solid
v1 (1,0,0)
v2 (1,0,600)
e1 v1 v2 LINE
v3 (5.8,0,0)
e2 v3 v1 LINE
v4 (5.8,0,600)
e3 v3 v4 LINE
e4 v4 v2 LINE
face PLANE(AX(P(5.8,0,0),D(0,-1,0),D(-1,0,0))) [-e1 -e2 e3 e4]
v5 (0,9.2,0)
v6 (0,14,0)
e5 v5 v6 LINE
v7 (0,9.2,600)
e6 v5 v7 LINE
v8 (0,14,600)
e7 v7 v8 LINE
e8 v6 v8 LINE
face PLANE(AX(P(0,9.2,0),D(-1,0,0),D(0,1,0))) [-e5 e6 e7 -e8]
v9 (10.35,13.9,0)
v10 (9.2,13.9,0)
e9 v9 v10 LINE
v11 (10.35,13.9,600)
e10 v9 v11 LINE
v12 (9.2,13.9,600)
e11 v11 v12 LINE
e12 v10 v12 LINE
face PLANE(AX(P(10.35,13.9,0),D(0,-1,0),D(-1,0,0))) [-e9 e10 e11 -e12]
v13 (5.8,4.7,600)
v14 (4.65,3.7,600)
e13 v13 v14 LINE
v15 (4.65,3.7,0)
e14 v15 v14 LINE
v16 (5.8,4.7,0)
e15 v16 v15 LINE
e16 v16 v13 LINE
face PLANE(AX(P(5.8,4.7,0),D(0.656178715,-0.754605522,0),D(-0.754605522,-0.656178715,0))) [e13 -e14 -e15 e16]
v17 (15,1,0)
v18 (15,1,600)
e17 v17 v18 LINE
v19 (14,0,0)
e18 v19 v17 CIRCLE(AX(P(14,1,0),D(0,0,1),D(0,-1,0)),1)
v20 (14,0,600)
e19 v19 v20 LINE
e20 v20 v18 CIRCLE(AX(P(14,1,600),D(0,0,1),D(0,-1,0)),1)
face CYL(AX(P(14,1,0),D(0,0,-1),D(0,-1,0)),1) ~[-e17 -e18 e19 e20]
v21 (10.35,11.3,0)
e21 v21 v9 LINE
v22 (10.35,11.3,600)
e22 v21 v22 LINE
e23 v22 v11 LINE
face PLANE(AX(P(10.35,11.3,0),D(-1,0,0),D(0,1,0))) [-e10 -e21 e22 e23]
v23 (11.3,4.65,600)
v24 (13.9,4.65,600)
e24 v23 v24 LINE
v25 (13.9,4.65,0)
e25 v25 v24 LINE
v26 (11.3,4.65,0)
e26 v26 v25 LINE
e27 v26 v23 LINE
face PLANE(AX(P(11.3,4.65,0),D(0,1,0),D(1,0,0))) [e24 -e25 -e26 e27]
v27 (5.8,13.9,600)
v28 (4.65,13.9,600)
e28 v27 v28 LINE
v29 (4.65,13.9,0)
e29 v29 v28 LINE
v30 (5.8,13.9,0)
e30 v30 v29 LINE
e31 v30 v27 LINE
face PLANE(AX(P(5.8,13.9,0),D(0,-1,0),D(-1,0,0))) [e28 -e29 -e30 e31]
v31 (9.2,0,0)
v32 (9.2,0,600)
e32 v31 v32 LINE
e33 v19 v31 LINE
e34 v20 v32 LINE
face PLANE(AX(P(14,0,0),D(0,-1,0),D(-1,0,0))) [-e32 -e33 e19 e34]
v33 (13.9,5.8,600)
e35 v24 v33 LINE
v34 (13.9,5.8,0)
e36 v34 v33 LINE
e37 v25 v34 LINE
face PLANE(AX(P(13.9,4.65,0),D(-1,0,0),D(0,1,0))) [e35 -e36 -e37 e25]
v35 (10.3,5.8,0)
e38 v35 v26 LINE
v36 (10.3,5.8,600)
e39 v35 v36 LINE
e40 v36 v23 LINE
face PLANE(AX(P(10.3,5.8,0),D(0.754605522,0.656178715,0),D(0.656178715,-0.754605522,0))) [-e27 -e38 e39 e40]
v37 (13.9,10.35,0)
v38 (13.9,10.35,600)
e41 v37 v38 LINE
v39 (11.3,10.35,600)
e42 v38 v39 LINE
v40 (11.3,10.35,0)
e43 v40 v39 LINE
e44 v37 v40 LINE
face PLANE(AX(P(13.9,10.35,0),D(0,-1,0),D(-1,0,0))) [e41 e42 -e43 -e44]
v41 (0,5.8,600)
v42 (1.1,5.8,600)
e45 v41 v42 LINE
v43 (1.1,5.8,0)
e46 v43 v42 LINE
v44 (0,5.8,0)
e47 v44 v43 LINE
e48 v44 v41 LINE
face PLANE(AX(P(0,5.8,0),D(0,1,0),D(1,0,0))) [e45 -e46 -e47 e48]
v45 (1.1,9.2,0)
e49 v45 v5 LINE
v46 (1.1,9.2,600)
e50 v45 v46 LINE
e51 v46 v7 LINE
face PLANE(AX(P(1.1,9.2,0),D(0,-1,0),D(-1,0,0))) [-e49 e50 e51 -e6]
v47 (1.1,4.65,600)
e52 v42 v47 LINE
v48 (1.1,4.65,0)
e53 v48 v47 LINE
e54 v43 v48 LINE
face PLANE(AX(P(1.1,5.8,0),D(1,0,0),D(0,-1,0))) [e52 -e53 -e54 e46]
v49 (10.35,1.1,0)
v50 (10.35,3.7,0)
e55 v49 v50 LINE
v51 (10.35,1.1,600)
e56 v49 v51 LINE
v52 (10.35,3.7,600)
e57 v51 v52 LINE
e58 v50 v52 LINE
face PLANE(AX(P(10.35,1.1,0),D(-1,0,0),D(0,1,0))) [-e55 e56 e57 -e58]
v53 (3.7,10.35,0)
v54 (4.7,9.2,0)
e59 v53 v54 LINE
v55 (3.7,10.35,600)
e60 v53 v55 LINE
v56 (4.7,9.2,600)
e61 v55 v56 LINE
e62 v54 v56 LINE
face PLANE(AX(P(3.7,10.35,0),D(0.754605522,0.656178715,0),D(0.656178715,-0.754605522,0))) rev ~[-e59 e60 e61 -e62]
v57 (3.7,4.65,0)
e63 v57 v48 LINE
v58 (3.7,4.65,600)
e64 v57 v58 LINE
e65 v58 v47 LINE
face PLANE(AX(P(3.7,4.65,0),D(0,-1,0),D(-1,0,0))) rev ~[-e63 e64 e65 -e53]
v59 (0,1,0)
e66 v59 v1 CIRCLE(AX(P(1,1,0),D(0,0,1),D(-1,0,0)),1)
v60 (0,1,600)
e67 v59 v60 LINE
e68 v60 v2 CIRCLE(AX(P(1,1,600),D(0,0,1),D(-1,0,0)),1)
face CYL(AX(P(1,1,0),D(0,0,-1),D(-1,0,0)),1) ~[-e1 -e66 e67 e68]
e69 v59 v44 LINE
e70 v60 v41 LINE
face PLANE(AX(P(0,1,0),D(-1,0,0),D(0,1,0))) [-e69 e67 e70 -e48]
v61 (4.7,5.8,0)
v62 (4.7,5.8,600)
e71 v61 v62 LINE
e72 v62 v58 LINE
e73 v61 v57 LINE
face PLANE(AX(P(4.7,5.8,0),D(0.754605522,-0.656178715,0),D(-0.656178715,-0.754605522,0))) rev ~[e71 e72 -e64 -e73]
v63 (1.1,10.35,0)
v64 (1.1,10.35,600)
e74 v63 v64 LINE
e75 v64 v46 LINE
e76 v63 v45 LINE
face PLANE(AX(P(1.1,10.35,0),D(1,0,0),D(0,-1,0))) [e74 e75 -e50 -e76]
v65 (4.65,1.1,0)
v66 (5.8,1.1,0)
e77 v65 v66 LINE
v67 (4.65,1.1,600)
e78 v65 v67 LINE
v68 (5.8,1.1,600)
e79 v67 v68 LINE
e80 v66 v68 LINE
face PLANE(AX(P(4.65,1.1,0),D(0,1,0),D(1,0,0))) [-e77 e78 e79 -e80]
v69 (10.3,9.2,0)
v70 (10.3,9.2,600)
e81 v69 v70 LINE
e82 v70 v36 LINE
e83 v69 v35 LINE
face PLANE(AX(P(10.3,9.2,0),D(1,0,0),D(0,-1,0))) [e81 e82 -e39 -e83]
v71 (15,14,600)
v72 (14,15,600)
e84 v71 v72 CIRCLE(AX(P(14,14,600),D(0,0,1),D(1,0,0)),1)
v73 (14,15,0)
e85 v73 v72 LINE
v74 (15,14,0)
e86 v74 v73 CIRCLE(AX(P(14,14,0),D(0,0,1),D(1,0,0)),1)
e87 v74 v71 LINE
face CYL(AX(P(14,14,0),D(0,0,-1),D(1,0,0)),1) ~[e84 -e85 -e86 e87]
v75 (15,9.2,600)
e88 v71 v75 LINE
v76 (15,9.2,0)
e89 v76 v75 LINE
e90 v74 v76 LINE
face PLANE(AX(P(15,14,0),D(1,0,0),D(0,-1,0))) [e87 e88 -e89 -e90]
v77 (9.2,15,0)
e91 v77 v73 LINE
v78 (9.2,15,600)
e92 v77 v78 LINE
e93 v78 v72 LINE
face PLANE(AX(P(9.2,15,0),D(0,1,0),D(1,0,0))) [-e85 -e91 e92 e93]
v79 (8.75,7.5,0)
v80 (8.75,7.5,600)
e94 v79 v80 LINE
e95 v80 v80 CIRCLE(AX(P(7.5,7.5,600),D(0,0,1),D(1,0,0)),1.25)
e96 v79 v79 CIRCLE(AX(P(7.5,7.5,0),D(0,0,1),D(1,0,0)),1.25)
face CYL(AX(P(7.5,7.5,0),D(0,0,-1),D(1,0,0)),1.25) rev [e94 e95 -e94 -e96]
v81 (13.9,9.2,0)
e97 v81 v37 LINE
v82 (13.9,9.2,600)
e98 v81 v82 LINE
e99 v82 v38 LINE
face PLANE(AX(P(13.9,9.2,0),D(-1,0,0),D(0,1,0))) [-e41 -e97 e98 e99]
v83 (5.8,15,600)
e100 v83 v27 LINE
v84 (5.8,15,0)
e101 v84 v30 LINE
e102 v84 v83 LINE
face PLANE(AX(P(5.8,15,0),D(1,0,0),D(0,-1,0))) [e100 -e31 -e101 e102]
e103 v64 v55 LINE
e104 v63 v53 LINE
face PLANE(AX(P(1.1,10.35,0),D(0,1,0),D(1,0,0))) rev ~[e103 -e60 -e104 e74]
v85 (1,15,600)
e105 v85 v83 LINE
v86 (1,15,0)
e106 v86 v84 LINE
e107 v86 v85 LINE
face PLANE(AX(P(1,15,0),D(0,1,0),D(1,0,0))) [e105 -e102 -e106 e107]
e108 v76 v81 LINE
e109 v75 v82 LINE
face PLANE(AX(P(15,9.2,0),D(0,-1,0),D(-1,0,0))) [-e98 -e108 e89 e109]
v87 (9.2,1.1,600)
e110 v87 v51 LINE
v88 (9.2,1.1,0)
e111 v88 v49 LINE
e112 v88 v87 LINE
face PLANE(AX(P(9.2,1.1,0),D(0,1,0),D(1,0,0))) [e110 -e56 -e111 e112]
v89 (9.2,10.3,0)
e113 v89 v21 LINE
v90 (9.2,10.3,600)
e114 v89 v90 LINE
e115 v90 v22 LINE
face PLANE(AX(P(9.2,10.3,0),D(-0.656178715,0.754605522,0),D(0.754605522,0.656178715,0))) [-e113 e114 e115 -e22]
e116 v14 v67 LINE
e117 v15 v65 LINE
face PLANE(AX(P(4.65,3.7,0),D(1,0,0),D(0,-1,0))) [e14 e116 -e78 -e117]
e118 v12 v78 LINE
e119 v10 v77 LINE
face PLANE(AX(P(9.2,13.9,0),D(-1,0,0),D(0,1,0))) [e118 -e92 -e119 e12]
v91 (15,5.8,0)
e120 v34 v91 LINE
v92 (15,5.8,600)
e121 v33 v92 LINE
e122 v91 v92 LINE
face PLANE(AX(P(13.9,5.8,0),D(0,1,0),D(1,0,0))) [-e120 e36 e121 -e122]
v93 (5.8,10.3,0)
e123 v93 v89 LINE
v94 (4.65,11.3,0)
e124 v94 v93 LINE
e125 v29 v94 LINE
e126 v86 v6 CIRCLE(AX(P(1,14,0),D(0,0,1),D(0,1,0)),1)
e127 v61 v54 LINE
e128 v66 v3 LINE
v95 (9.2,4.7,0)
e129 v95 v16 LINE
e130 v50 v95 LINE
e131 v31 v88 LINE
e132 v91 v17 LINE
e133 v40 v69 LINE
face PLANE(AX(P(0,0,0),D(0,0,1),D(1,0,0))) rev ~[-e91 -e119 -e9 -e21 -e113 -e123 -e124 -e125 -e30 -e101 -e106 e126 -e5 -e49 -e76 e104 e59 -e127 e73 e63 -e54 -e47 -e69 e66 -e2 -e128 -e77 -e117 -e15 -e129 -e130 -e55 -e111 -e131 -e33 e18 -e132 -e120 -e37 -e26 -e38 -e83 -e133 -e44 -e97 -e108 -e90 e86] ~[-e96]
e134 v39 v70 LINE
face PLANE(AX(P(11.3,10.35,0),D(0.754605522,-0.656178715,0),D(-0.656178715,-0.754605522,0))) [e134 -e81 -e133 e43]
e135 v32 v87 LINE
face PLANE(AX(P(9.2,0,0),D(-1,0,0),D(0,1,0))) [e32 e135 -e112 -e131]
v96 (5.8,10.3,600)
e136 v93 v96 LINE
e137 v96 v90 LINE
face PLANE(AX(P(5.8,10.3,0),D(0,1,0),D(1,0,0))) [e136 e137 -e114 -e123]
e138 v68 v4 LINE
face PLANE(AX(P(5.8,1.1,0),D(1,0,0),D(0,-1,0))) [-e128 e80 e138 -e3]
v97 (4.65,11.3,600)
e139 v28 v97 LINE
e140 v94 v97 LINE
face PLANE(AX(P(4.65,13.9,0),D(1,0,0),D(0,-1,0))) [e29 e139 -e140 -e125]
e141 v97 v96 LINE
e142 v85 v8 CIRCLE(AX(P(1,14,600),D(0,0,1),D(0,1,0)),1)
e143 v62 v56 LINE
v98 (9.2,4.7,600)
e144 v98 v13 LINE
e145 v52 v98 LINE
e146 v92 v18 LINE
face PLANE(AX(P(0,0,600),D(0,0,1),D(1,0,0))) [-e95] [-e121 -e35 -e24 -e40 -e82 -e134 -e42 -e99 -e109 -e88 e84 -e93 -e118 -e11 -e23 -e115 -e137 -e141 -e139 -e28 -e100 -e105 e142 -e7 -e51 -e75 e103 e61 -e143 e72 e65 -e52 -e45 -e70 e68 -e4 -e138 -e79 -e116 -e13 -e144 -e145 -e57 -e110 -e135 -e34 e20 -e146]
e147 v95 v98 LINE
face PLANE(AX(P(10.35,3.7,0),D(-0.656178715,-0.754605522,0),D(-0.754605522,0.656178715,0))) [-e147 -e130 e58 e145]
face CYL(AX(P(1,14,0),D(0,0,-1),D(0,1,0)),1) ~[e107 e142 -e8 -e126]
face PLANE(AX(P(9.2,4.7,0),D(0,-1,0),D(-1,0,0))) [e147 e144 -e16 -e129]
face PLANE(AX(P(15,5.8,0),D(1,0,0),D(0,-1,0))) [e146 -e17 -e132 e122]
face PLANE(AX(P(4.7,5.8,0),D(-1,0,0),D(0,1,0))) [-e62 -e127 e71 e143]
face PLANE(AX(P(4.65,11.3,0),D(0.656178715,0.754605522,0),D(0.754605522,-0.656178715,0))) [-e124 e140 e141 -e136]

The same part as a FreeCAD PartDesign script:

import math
import FreeCAD as App
import Part
import Sketcher
Q = App.Units.Quantity

doc = App.newDocument("Part")
params = doc.addObject("Spreadsheet::Sheet", "Params")
for row, (alias, value) in enumerate([
    ("sketch1_radius", "1 mm"),
    ("sketch1_diameter", "2.5 mm"),
    ("sketch1_width", "3.4 mm"),
    ("sketch1_width2", "1.1 mm"),
    ("sketch1_width3", "1.15 mm"),
    ("pad1_length", "600 mm"),
], start=1):
    params.set(f"A{row}", alias)
    params.set(f"B{row}", "=" + value)
    params.setAlias(f"B{row}", alias)

body = doc.addObject("PartDesign::Body", "Body")

sketch1 = doc.addObject("Sketcher::SketchObject", "Sketch")
body.addObject(sketch1)
sketch1.AttachmentSupport = (doc.XY_Plane, [""])
sketch1.MapMode = "FlatFace"
sketch1.addGeometry([
    Part.LineSegment(App.Vector(0, 5.8, 0), App.Vector(0, 1, 0)),
    Part.ArcOfCircle(Part.Circle(App.Vector(1, 1, 0), App.Vector(0, 0, 1), 1), math.radians(180), math.radians(270)),
    Part.LineSegment(App.Vector(1, 0, 0), App.Vector(5.8, 0, 0)),
    Part.LineSegment(App.Vector(5.8, 0, 0), App.Vector(5.8, 1.1, 0)),
    Part.LineSegment(App.Vector(5.8, 1.1, 0), App.Vector(4.65, 1.1, 0)),
    Part.LineSegment(App.Vector(4.65, 1.1, 0), App.Vector(4.65, 3.7, 0)),
    Part.LineSegment(App.Vector(4.65, 3.7, 0), App.Vector(5.8, 4.7, 0)),
    Part.LineSegment(App.Vector(5.8, 4.7, 0), App.Vector(9.2, 4.7, 0)),
    Part.LineSegment(App.Vector(9.2, 4.7, 0), App.Vector(10.35, 3.7, 0)),
    Part.LineSegment(App.Vector(10.35, 3.7, 0), App.Vector(10.35, 1.1, 0)),
    Part.LineSegment(App.Vector(10.35, 1.1, 0), App.Vector(9.2, 1.1, 0)),
    Part.LineSegment(App.Vector(9.2, 1.1, 0), App.Vector(9.2, 0, 0)),
    Part.LineSegment(App.Vector(9.2, 0, 0), App.Vector(14, 0, 0)),
    Part.ArcOfCircle(Part.Circle(App.Vector(14, 1, 0), App.Vector(0, 0, 1), 1), math.radians(-90), math.radians(0)),
    Part.LineSegment(App.Vector(15, 1, 0), App.Vector(15, 5.8, 0)),
    Part.LineSegment(App.Vector(15, 5.8, 0), App.Vector(13.9, 5.8, 0)),
    Part.LineSegment(App.Vector(13.9, 5.8, 0), App.Vector(13.9, 4.65, 0)),
    Part.LineSegment(App.Vector(13.9, 4.65, 0), App.Vector(11.3, 4.65, 0)),
    Part.LineSegment(App.Vector(11.3, 4.65, 0), App.Vector(10.3, 5.8, 0)),
    Part.LineSegment(App.Vector(10.3, 5.8, 0), App.Vector(10.3, 9.2, 0)),
    Part.LineSegment(App.Vector(10.3, 9.2, 0), App.Vector(11.3, 10.35, 0)),
    Part.LineSegment(App.Vector(11.3, 10.35, 0), App.Vector(13.9, 10.35, 0)),
    Part.LineSegment(App.Vector(13.9, 10.35, 0), App.Vector(13.9, 9.2, 0)),
    Part.LineSegment(App.Vector(13.9, 9.2, 0), App.Vector(15, 9.2, 0)),
    Part.LineSegment(App.Vector(15, 9.2, 0), App.Vector(15, 14, 0)),
    Part.ArcOfCircle(Part.Circle(App.Vector(14, 14, 0), App.Vector(0, 0, 1), 1), math.radians(0), math.radians(90)),
    Part.LineSegment(App.Vector(14, 15, 0), App.Vector(9.2, 15, 0)),
    Part.LineSegment(App.Vector(9.2, 15, 0), App.Vector(9.2, 13.9, 0)),
    Part.LineSegment(App.Vector(9.2, 13.9, 0), App.Vector(10.35, 13.9, 0)),
    Part.LineSegment(App.Vector(10.35, 13.9, 0), App.Vector(10.35, 11.3, 0)),
    Part.LineSegment(App.Vector(10.35, 11.3, 0), App.Vector(9.2, 10.3, 0)),
    Part.LineSegment(App.Vector(9.2, 10.3, 0), App.Vector(5.8, 10.3, 0)),
    Part.LineSegment(App.Vector(5.8, 10.3, 0), App.Vector(4.65, 11.3, 0)),
    Part.LineSegment(App.Vector(4.65, 11.3, 0), App.Vector(4.65, 13.9, 0)),
    Part.LineSegment(App.Vector(4.65, 13.9, 0), App.Vector(5.8, 13.9, 0)),
    Part.LineSegment(App.Vector(5.8, 13.9, 0), App.Vector(5.8, 15, 0)),
    Part.LineSegment(App.Vector(5.8, 15, 0), App.Vector(1, 15, 0)),
    Part.ArcOfCircle(Part.Circle(App.Vector(1, 14, 0), App.Vector(0, 0, 1), 1), math.radians(90), math.radians(180)),
    Part.LineSegment(App.Vector(0, 14, 0), App.Vector(0, 9.2, 0)),
    Part.LineSegment(App.Vector(0, 9.2, 0), App.Vector(1.1, 9.2, 0)),
    Part.LineSegment(App.Vector(1.1, 9.2, 0), App.Vector(1.1, 10.35, 0)),
    Part.LineSegment(App.Vector(1.1, 10.35, 0), App.Vector(3.7, 10.35, 0)),
    Part.LineSegment(App.Vector(3.7, 10.35, 0), App.Vector(4.7, 9.2, 0)),
    Part.LineSegment(App.Vector(4.7, 9.2, 0), App.Vector(4.7, 5.8, 0)),
    Part.LineSegment(App.Vector(4.7, 5.8, 0), App.Vector(3.7, 4.65, 0)),
    Part.LineSegment(App.Vector(3.7, 4.65, 0), App.Vector(1.1, 4.65, 0)),
    Part.LineSegment(App.Vector(1.1, 4.65, 0), App.Vector(1.1, 5.8, 0)),
    Part.LineSegment(App.Vector(1.1, 5.8, 0), App.Vector(0, 5.8, 0)),
    Part.Circle(App.Vector(7.5, 7.5, 0), App.Vector(0, 0, 1), 1.25),
], False)
sketch1.addConstraint([
    Sketcher.Constraint("Tangent", 0, 2, 1, 1),
    Sketcher.Constraint("Tangent", 1, 2, 2, 1),
    Sketcher.Constraint("Coincident", 2, 2, 3, 1),
    Sketcher.Constraint("Coincident", 3, 2, 4, 1),
    Sketcher.Constraint("Coincident", 4, 2, 5, 1),
    Sketcher.Constraint("Coincident", 5, 2, 6, 1),
    Sketcher.Constraint("Coincident", 6, 2, 7, 1),
    Sketcher.Constraint("Coincident", 7, 2, 8, 1),
    Sketcher.Constraint("Coincident", 8, 2, 9, 1),
    Sketcher.Constraint("Coincident", 9, 2, 10, 1),
    Sketcher.Constraint("Coincident", 10, 2, 11, 1),
    Sketcher.Constraint("Coincident", 11, 2, 12, 1),
    Sketcher.Constraint("Tangent", 12, 2, 13, 1),
    Sketcher.Constraint("Tangent", 13, 2, 14, 1),
    Sketcher.Constraint("Coincident", 14, 2, 15, 1),
    Sketcher.Constraint("Coincident", 15, 2, 16, 1),
    Sketcher.Constraint("Coincident", 16, 2, 17, 1),
    Sketcher.Constraint("Coincident", 17, 2, 18, 1),
    Sketcher.Constraint("Coincident", 18, 2, 19, 1),
    Sketcher.Constraint("Coincident", 19, 2, 20, 1),
    Sketcher.Constraint("Coincident", 20, 2, 21, 1),
    Sketcher.Constraint("Coincident", 21, 2, 22, 1),
    Sketcher.Constraint("Coincident", 22, 2, 23, 1),
    Sketcher.Constraint("Coincident", 23, 2, 24, 1),
    Sketcher.Constraint("Tangent", 24, 2, 25, 1),
    Sketcher.Constraint("Tangent", 25, 2, 26, 1),
    Sketcher.Constraint("Coincident", 26, 2, 27, 1),
    Sketcher.Constraint("Coincident", 27, 2, 28, 1),
    Sketcher.Constraint("Coincident", 28, 2, 29, 1),
    Sketcher.Constraint("Coincident", 29, 2, 30, 1),
    Sketcher.Constraint("Coincident", 30, 2, 31, 1),
    Sketcher.Constraint("Coincident", 31, 2, 32, 1),
    Sketcher.Constraint("Coincident", 32, 2, 33, 1),
    Sketcher.Constraint("Coincident", 33, 2, 34, 1),
    Sketcher.Constraint("Coincident", 34, 2, 35, 1),
    Sketcher.Constraint("Coincident", 35, 2, 36, 1),
    Sketcher.Constraint("Tangent", 36, 2, 37, 1),
    Sketcher.Constraint("Tangent", 37, 2, 38, 1),
    Sketcher.Constraint("Coincident", 38, 2, 39, 1),
    Sketcher.Constraint("Coincident", 39, 2, 40, 1),
    Sketcher.Constraint("Coincident", 40, 2, 41, 1),
    Sketcher.Constraint("Coincident", 41, 2, 42, 1),
    Sketcher.Constraint("Coincident", 42, 2, 43, 1),
    Sketcher.Constraint("Coincident", 43, 2, 44, 1),
    Sketcher.Constraint("Coincident", 44, 2, 45, 1),
    Sketcher.Constraint("Coincident", 45, 2, 46, 1),
    Sketcher.Constraint("Coincident", 46, 2, 47, 1),
    Sketcher.Constraint("Coincident", 47, 2, 0, 1),
    Sketcher.Constraint("Vertical", 0),
    Sketcher.Constraint("Horizontal", 2),
    Sketcher.Constraint("Vertical", 3),
    Sketcher.Constraint("Horizontal", 4),
    Sketcher.Constraint("Vertical", 5),
    Sketcher.Constraint("Horizontal", 7),
    Sketcher.Constraint("Vertical", 9),
    Sketcher.Constraint("Horizontal", 10),
    Sketcher.Constraint("Vertical", 11),
    Sketcher.Constraint("Horizontal", 12),
    Sketcher.Constraint("Vertical", 14),
    Sketcher.Constraint("Horizontal", 15),
    Sketcher.Constraint("Vertical", 16),
    Sketcher.Constraint("Horizontal", 17),
    Sketcher.Constraint("Vertical", 19),
    Sketcher.Constraint("Horizontal", 21),
    Sketcher.Constraint("Vertical", 22),
    Sketcher.Constraint("Horizontal", 23),
    Sketcher.Constraint("Vertical", 24),
    Sketcher.Constraint("Horizontal", 26),
    Sketcher.Constraint("Vertical", 27),
    Sketcher.Constraint("Horizontal", 28),
    Sketcher.Constraint("Vertical", 29),
    Sketcher.Constraint("Horizontal", 31),
    Sketcher.Constraint("Vertical", 33),
    Sketcher.Constraint("Horizontal", 34),
    Sketcher.Constraint("Vertical", 35),
    Sketcher.Constraint("Horizontal", 36),
    Sketcher.Constraint("Vertical", 38),
    Sketcher.Constraint("Horizontal", 39),
    Sketcher.Constraint("Vertical", 40),
    Sketcher.Constraint("Horizontal", 41),
    Sketcher.Constraint("Vertical", 43),
    Sketcher.Constraint("Horizontal", 45),
    Sketcher.Constraint("Vertical", 46),
    Sketcher.Constraint("Horizontal", 47),
    Sketcher.Constraint("Equal", 1, 13),
    Sketcher.Constraint("Equal", 13, 25),
    Sketcher.Constraint("Equal", 25, 37),
    Sketcher.Constraint("PointOnObject", 0, 2, -2),
    Sketcher.Constraint("PointOnObject", 1, 2, -1),
    Sketcher.Constraint("PointOnObject", 11, 2, -1),
    Sketcher.Constraint("PointOnObject", 37, 2, -2),
    Sketcher.Constraint("Perpendicular", 6, 18),
    Sketcher.Constraint("Perpendicular", 8, 20),
    Sketcher.Constraint("Perpendicular", 18, 30),
    Sketcher.Constraint("Perpendicular", 20, 32),
    Sketcher.Constraint("Perpendicular", 30, 42),
    Sketcher.Constraint("Perpendicular", 32, 44),
    Sketcher.Constraint("Horizontal", 25, 3, 37, 3),
    Sketcher.Constraint("Horizontal", 5, 2, 8, 2),
    Sketcher.Constraint("Horizontal", 4, 2, 9, 2),
    Sketcher.Constraint("Horizontal", 15, 2, 18, 2),
    Sketcher.Constraint("Horizontal", 19, 2, 22, 2),
    Sketcher.Constraint("Horizontal", 29, 2, 32, 2),
    Sketcher.Constraint("Horizontal", 28, 2, 33, 2),
    Sketcher.Constraint("Horizontal", 23, 2, 38, 2),
    Sketcher.Constraint("Horizontal", 21, 2, 40, 2),
    Sketcher.Constraint("Horizontal", 39, 2, 42, 2),
    Sketcher.Constraint("Horizontal", 18, 2, 43, 2),
    Sketcher.Constraint("Horizontal", 17, 2, 44, 2),
    Sketcher.Constraint("Horizontal", 43, 2, 46, 2),
    Sketcher.Constraint("Vertical", 13, 3, 25, 3),
    Sketcher.Constraint("Vertical", 3, 2, 6, 2),
    Sketcher.Constraint("Vertical", 7, 2, 10, 2),
    Sketcher.Constraint("Vertical", 17, 2, 20, 2),
    Sketcher.Constraint("Vertical", 16, 2, 21, 2),
    Sketcher.Constraint("Vertical", 11, 2, 26, 2),
    Sketcher.Constraint("Vertical", 9, 2, 28, 2),
    Sketcher.Constraint("Vertical", 27, 2, 30, 2),
    Sketcher.Constraint("Vertical", 6, 2, 31, 2),
    Sketcher.Constraint("Vertical", 5, 2, 32, 2),
    Sketcher.Constraint("Vertical", 31, 2, 34, 2),
    Sketcher.Constraint("Vertical", 40, 2, 45, 2),
    Sketcher.Constraint("Equal", 2, 12),
    Sketcher.Constraint("Equal", 23, 39),
    Sketcher.Constraint("Equal", 21, 41),
    Sketcher.Constraint("Equal", 36, 0),
    Sketcher.Constraint("Equal", 47, 3),
    Sketcher.Constraint("Equal", 45, 5),
    Sketcher.Constraint("Equal", 34, 16),
    Sketcher.Constraint("Equal", 31, 19),
    Sketcher.Constraint("Equal", 14, 24),
    Sketcher.Constraint("Equal", 11, 27),
    Sketcher.Constraint("Equal", 9, 29),
    Sketcher.Constraint("Radius", 1, Q("1 mm")),
    Sketcher.Constraint("Diameter", 48, Q("2.5 mm")),
    Sketcher.Constraint("DistanceX", 7, 1, 7, 2, Q("3.4 mm")),
    Sketcher.Constraint("DistanceX", 15, 2, 15, 1, Q("1.1 mm")),
    Sketcher.Constraint("DistanceX", -1, 1, 13, 2, Q("15 mm")),
    Sketcher.Constraint("DistanceY", 5, 2, 6, 2, Q("1 mm")),
    Sketcher.Constraint("DistanceX", -1, 1, 48, 3, Q("7.5 mm")),
    Sketcher.Constraint("DistanceY", -1, 1, 48, 3, Q("7.5 mm")),
    Sketcher.Constraint("DistanceY", 3, 2, 6, 2, Q("3.6 mm")),
    Sketcher.Constraint("DistanceX", 4, 2, 4, 1, Q("1.15 mm")),
])
sketch1.setExpression("Constraints[133]", "Params.sketch1_radius")
sketch1.setExpression("Constraints[134]", "Params.sketch1_diameter")
sketch1.setExpression("Constraints[135]", "Params.sketch1_width")
sketch1.setExpression("Constraints[136]", "Params.sketch1_width2")
sketch1.setExpression("Constraints[142]", "Params.sketch1_width3")
pad1 = doc.addObject("PartDesign::Pad", "Pad")
body.addObject(pad1)
pad1.Profile = sketch1
pad1.setExpression("Length", "Params.pad1_length")

doc.recompute()
